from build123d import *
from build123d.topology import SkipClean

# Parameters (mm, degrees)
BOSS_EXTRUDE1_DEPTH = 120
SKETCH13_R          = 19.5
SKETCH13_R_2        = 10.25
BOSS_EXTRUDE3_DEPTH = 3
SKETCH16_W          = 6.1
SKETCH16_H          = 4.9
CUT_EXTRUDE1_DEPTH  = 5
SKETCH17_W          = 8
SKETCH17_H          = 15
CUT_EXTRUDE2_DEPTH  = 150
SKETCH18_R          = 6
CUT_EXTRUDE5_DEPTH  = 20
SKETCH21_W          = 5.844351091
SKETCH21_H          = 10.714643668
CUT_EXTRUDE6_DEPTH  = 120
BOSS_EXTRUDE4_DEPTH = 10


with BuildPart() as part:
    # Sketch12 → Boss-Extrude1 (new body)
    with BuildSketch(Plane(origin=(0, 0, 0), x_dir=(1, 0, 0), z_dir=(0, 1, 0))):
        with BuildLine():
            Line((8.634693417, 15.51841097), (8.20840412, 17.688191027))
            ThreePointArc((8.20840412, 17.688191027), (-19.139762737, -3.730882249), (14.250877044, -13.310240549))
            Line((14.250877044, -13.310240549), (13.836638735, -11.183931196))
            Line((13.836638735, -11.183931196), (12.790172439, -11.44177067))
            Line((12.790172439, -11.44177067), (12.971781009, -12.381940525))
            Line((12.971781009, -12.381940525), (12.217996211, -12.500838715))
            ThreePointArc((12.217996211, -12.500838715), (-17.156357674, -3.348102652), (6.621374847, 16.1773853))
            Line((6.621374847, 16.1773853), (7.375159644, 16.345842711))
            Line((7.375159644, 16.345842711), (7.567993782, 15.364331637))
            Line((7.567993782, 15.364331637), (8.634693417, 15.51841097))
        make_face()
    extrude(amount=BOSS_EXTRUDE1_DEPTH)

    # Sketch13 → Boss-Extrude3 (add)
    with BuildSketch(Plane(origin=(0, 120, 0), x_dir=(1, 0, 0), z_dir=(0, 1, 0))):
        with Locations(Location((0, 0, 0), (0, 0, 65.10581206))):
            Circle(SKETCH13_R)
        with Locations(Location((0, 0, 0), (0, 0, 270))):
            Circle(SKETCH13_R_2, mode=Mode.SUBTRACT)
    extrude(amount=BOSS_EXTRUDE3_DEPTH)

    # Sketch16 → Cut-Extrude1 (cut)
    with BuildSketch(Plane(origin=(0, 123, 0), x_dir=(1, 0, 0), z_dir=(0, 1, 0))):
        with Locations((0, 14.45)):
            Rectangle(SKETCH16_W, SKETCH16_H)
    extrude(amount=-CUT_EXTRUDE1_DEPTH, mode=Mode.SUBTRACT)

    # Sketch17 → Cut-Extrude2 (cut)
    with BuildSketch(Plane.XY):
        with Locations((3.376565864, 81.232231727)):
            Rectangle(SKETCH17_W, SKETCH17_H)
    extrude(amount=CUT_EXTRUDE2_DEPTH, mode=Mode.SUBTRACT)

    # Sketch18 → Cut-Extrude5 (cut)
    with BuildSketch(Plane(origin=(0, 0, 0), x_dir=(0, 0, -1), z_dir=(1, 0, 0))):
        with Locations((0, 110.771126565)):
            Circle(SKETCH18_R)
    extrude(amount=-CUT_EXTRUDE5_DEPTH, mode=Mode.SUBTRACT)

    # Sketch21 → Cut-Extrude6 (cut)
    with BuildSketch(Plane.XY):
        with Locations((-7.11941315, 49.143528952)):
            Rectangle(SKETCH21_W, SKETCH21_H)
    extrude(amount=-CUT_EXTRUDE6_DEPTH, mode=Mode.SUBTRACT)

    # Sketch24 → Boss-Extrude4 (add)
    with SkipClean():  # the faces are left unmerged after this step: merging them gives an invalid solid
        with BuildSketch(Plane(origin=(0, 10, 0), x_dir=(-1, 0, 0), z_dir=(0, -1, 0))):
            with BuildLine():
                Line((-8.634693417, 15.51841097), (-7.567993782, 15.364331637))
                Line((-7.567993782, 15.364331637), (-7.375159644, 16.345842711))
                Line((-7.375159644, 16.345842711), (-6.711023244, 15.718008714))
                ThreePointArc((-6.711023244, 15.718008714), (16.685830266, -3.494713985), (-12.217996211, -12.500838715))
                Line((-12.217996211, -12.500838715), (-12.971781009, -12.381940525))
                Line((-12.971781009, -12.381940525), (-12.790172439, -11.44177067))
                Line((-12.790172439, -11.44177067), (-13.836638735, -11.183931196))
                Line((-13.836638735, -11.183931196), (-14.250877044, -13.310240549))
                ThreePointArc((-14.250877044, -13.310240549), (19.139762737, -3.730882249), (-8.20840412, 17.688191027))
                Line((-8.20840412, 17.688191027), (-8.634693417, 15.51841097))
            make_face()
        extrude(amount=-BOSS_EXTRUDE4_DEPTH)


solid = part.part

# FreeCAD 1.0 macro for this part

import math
import FreeCAD as App
import Part
import Sketcher
Q = App.Units.Quantity

doc = App.newDocument("Part")
body = doc.addObject("PartDesign::Body", "Body")

# Sketch on XZ plane
sketch1 = body.newObject("Sketcher::SketchObject", "Sketch")
sketch1.AttachmentSupport = (doc.getObject("XZ_Plane"), [""])
sketch1.MapMode = "FlatFace"
sketch1.addGeometry([
    Part.LineSegment(App.Vector(8.634693, -15.518411, 0), App.Vector(8.208404, -17.688191, 0)),  # 0
    Part.ArcOfCircle(Part.Circle(App.Vector(0, 0, 0), App.Vector(0, 0, 1), 19.5), math.radians(43.045305), math.radians(294.894188)),  # 1
    Part.LineSegment(App.Vector(14.250877, 13.310241, 0), App.Vector(13.836639, 11.183931, 0)),  # 2
    Part.LineSegment(App.Vector(13.836639, 11.183931, 0), App.Vector(12.790172, 11.441771, 0)),  # 3
    Part.LineSegment(App.Vector(12.790172, 11.441771, 0), App.Vector(12.971781, 12.381941, 0)),  # 4
    Part.LineSegment(App.Vector(12.971781, 12.381941, 0), App.Vector(12.217996, 12.500839, 0)),  # 5
    Part.ArcOfCircle(Part.Circle(App.Vector(0, 0, 0), App.Vector(0, 0, 1), 17.48), math.radians(45.655572), math.radians(292.259198)),  # 6
    Part.LineSegment(App.Vector(6.621375, -16.177385, 0), App.Vector(7.37516, -16.345843, 0)),  # 7
    Part.LineSegment(App.Vector(7.37516, -16.345843, 0), App.Vector(7.567994, -15.364332, 0)),  # 8
    Part.LineSegment(App.Vector(7.567994, -15.364332, 0), App.Vector(8.634693, -15.518411, 0)),  # 9
], False)
sketch1.addConstraint([
    Sketcher.Constraint("Coincident", 0, 2, 1, 2),
    Sketcher.Constraint("Coincident", 1, 1, 2, 1),
    Sketcher.Constraint("Coincident", 2, 2, 3, 1),
    Sketcher.Constraint("Coincident", 3, 2, 4, 1),
    Sketcher.Constraint("Coincident", 4, 2, 5, 1),
    Sketcher.Constraint("Coincident", 5, 2, 6, 1),
    Sketcher.Constraint("Coincident", 6, 2, 7, 1),
    Sketcher.Constraint("Coincident", 7, 2, 8, 1),
    Sketcher.Constraint("Coincident", 8, 2, 9, 1),
    Sketcher.Constraint("Coincident", 9, 2, 0, 1),
    Sketcher.Constraint("Coincident", 1, 3, -1, 1),
    Sketcher.Constraint("Coincident", 6, 3, -1, 1),
    Sketcher.Constraint("Radius", 1, Q("19.5 mm")),
    Sketcher.Constraint("Radius", 6, Q("17.48 mm")),
    Sketcher.Constraint("DistanceY", 4, 2, 1, 1, Q("0.9283 mm")),
    Sketcher.Constraint("DistanceY", 4, 2, 5, 2, Q("0.118898 mm")),
    Sketcher.Constraint("DistanceX", 8, 2, 9, 2, Q("1.0667 mm")),
    Sketcher.Constraint("Distance", 0, Q("2.211259 mm")),
    Sketcher.Constraint("Distance", 4, Q("0.957549 mm")),
    Sketcher.Constraint("Distance", 7, Q("0.772379 mm")),
    Sketcher.Constraint("Distance", 9, Q("1.07777 mm")),
    Sketcher.Constraint("DistanceY", 0, 2, -1, 1, Q("17.688191 mm")),
    Sketcher.Constraint("DistanceY", -1, 1, 1, 1, Q("13.310241 mm")),
    Sketcher.Constraint("DistanceX", -1, 1, 2, 2, Q("13.836639 mm")),
    Sketcher.Constraint("DistanceY", -1, 1, 2, 2, Q("11.183931 mm")),
    Sketcher.Constraint("DistanceY", -1, 1, 3, 2, Q("11.441771 mm")),
    Sketcher.Constraint("DistanceX", -1, 1, 4, 2, Q("12.971781 mm")),
    Sketcher.Constraint("DistanceX", -1, 1, 7, 2, Q("7.37516 mm")),
    Sketcher.Constraint("DistanceY", 8, 2, -1, 1, Q("15.364332 mm")),
    Sketcher.Constraint("DistanceX", 6, 2, 0, 2, Q("1.587029 mm")),
])
pad1 = body.newObject("PartDesign::Pad", "Pad")
pad1.Profile = sketch1
pad1.Length = 120
pad1.Reversed = True

# Sketch on XZ plane
sketch2 = body.newObject("Sketcher::SketchObject", "Sketch001")
sketch2.AttachmentSupport = (doc.getObject("XZ_Plane"), [""])
sketch2.MapMode = "FlatFace"
sketch2.AttachmentOffset = App.Placement(App.Vector(0, 0, -120), App.Rotation())
sketch2.addGeometry([
    Part.Circle(App.Vector(0, 0, 0), App.Vector(0, 0, 1), 20),
    Part.Circle(App.Vector(0, 0, 0), App.Vector(0, 0, 1), 10),
], False)
sketch2.addConstraint([
    Sketcher.Constraint("Coincident", 0, 3, -1, 1),
    Sketcher.Constraint("Coincident", 1, 3, -1, 1),
    Sketcher.Constraint("Diameter", 0, Q("39 mm")),
    Sketcher.Constraint("Diameter", 1, Q("20.5 mm")),
])
pad2 = body.newObject("PartDesign::Pad", "Pad001")
pad2.Profile = sketch2
pad2.Length = 3
pad2.Reversed = True

# Sketch on XZ plane
sketch3 = body.newObject("Sketcher::SketchObject", "Sketch002")
sketch3.AttachmentSupport = (doc.getObject("XZ_Plane"), [""])
sketch3.MapMode = "FlatFace"
sketch3.AttachmentOffset = App.Placement(App.Vector(0, 0, -123), App.Rotation())
sketch3.addGeometry([
    Part.LineSegment(App.Vector(-3, -16.9, 0), App.Vector(-3, -12, 0)),
    Part.LineSegment(App.Vector(-3, -12, 0), App.Vector(3, -12, 0)),
    Part.LineSegment(App.Vector(3, -12, 0), App.Vector(3, -16.9, 0)),
    Part.LineSegment(App.Vector(3, -16.9, 0), App.Vector(-3, -16.9, 0)),
], False)
sketch3.addConstraint([
    Sketcher.Constraint("Coincident", 0, 2, 1, 1),
    Sketcher.Constraint("Coincident", 1, 2, 2, 1),
    Sketcher.Constraint("Coincident", 2, 2, 3, 1),
    Sketcher.Constraint("Coincident", 3, 2, 0, 1),
    Sketcher.Constraint("Vertical", 0),
    Sketcher.Constraint("Horizontal", 1),
    Sketcher.Constraint("Vertical", 2),
    Sketcher.Constraint("Horizontal", 3),
    Sketcher.Constraint("DistanceX", 1, 1, 1, 2, Q("6.1 mm")),
    Sketcher.Constraint("DistanceY", 0, 1, 0, 2, Q("4.9 mm")),
    Sketcher.Constraint("DistanceY", 0, 2, -1, 1, Q("12 mm")),
    Sketcher.Constraint("DistanceX", 0, 2, -1, 1, Q("3.05 mm")),
])
pocket1 = body.newObject("PartDesign::Pocket", "Pocket")
pocket1.Profile = sketch3
pocket1.Length = 5
pocket1.Reversed = True

# Sketch on XY plane
sketch4 = body.newObject("Sketcher::SketchObject", "Sketch003")
sketch4.AttachmentSupport = (doc.getObject("XY_Plane"), [""])
sketch4.MapMode = "FlatFace"
sketch4.addGeometry([
    Part.LineSegment(App.Vector(-1, 89, 0), App.Vector(-1, 74, 0)),
    Part.LineSegment(App.Vector(-1, 74, 0), App.Vector(7, 74, 0)),
    Part.LineSegment(App.Vector(7, 74, 0), App.Vector(7, 89, 0)),
    Part.LineSegment(App.Vector(7, 89, 0), App.Vector(-1, 89, 0)),
], False)
sketch4.addConstraint([
    Sketcher.Constraint("Coincident", 0, 2, 1, 1),
    Sketcher.Constraint("Coincident", 1, 2, 2, 1),
    Sketcher.Constraint("Coincident", 2, 2, 3, 1),
    Sketcher.Constraint("Coincident", 3, 2, 0, 1),
    Sketcher.Constraint("Vertical", 0),
    Sketcher.Constraint("Horizontal", 1),
    Sketcher.Constraint("Vertical", 2),
    Sketcher.Constraint("Horizontal", 3),
    Sketcher.Constraint("DistanceX", 1, 1, 1, 2, Q("8 mm")),
    Sketcher.Constraint("DistanceY", 0, 2, 0, 1, Q("15 mm")),
    Sketcher.Constraint("DistanceY", -1, 1, 0, 2, Q("73.732232 mm")),
    Sketcher.Constraint("DistanceX", 0, 2, -1, 1, Q("0.623434 mm")),
])
pocket2 = body.newObject("PartDesign::Pocket", "Pocket001")
pocket2.Profile = sketch4
pocket2.Length = 150
pocket2.Reversed = True

# Sketch on YZ plane
sketch5 = body.newObject("Sketcher::SketchObject", "Sketch004")
sketch5.AttachmentSupport = (doc.getObject("YZ_Plane"), [""])
sketch5.MapMode = "FlatFace"
sketch5.addGeometry(Part.Circle(App.Vector(111, 0, 0), App.Vector(0, 0, 1), 6), False)
sketch5.addConstraint([
    Sketcher.Constraint("PointOnObject", 0, 3, -1),
    Sketcher.Constraint("Diameter", 0, Q("12 mm")),
    Sketcher.Constraint("DistanceX", -1, 1, 0, 3, Q("110.771127 mm")),
])
pocket3 = body.newObject("PartDesign::Pocket", "Pocket002")
pocket3.Profile = sketch5
pocket3.Length = 20

# Sketch on XY plane
sketch6 = body.newObject("Sketcher::SketchObject", "Sketch005")
sketch6.AttachmentSupport = (doc.getObject("XY_Plane"), [""])
sketch6.MapMode = "FlatFace"
sketch6.addGeometry([
    Part.LineSegment(App.Vector(-10, 55, 0), App.Vector(-10, 44, 0)),
    Part.LineSegment(App.Vector(-10, 44, 0), App.Vector(-4, 44, 0)),
    Part.LineSegment(App.Vector(-4, 44, 0), App.Vector(-4, 55, 0)),
    Part.LineSegment(App.Vector(-4, 55, 0), App.Vector(-10, 55, 0)),
], False)
sketch6.addConstraint([
    Sketcher.Constraint("Coincident", 0, 2, 1, 1),
    Sketcher.Constraint("Coincident", 1, 2, 2, 1),
    Sketcher.Constraint("Coincident", 2, 2, 3, 1),
    Sketcher.Constraint("Coincident", 3, 2, 0, 1),
    Sketcher.Constraint("Vertical", 0),
    Sketcher.Constraint("Horizontal", 1),
    Sketcher.Constraint("Vertical", 2),
    Sketcher.Constraint("Horizontal", 3),
    Sketcher.Constraint("DistanceX", 1, 1, 1, 2, Q("5.844351 mm")),
    Sketcher.Constraint("DistanceY", 0, 2, 0, 1, Q("10.714644 mm")),
    Sketcher.Constraint("DistanceX", 0, 2, -1, 1, Q("10.041589 mm")),
    Sketcher.Constraint("DistanceY", -1, 1, 2, 2, Q("54.500851 mm")),
])
pocket4 = body.newObject("PartDesign::Pocket", "Pocket003")
pocket4.Profile = sketch6
pocket4.Length = 120

# Sketch on XZ plane
sketch7 = body.newObject("Sketcher::SketchObject", "Sketch006")
sketch7.AttachmentSupport = (doc.getObject("XZ_Plane"), [""])
sketch7.MapMode = "FlatFace"
sketch7.AttachmentOffset = App.Placement(App.Vector(0, 0, -10), App.Rotation())
sketch7.addGeometry([
    Part.LineSegment(App.Vector(8.6, -15.5, 0), App.Vector(7.6, -15.4, 0)),  # 0
    Part.LineSegment(App.Vector(7.6, -15.4, 0), App.Vector(7.4, -16.3, 0)),  # 1
    Part.LineSegment(App.Vector(7.4, -16.3, 0), App.Vector(6.7, -15.7, 0)),  # 2
    Part.ArcOfCircle(Part.Circle(App.Vector(0.2, 0.2, 0), App.Vector(0, 0, 1), 17.2), math.radians(46), math.radians(292)),  # 3
    Part.LineSegment(App.Vector(12.2, 12.5, 0), App.Vector(13, 12.4, 0)),  # 4
    Part.LineSegment(App.Vector(13, 12.4, 0), App.Vector(12.8, 11.4, 0)),  # 5
    Part.LineSegment(App.Vector(12.8, 11.4, 0), App.Vector(13.8, 11.2, 0)),  # 6
    Part.LineSegment(App.Vector(13.8, 11.2, 0), App.Vector(14.3, 13.3, 0)),  # 7
    Part.ArcOfCircle(Part.Circle(App.Vector(0, 0, 0), App.Vector(0, 0, 1), 19.5), math.radians(43), math.radians(295)),  # 8
    Part.LineSegment(App.Vector(8.2, -17.7, 0), App.Vector(8.6, -15.5, 0)),  # 9
], False)
sketch7.addConstraint([
    Sketcher.Constraint("Coincident", 0, 2, 1, 1),
    Sketcher.Constraint("Coincident", 1, 2, 2, 1),
    Sketcher.Constraint("Coincident", 2, 2, 3, 2),
    Sketcher.Constraint("Coincident", 3, 1, 4, 1),
    Sketcher.Constraint("Coincident", 4, 2, 5, 1),
    Sketcher.Constraint("Coincident", 5, 2, 6, 1),
    Sketcher.Constraint("Coincident", 6, 2, 7, 1),
    Sketcher.Constraint("Coincident", 7, 2, 8, 1),
    Sketcher.Constraint("Coincident", 8, 2, 9, 1),
    Sketcher.Constraint("Coincident", 9, 2, 0, 1),
    Sketcher.Constraint("Coincident", 8, 3, -1, 1),
    Sketcher.Constraint("Parallel", 1, 9),
    Sketcher.Constraint("Radius", 3, Q("17.2 mm")),
    Sketcher.Constraint("Radius", 8, Q("19.5 mm")),
    Sketcher.Constraint("DistanceY", 3, 3, 7, 2, Q("13.109998 mm")),
    Sketcher.Constraint("DistanceY", 4, 2, 3, 1, Q("0.118898 mm")),
    Sketcher.Constraint("DistanceY", 3, 3, 4, 2, Q("12.181698 mm")),
    Sketcher.Constraint("DistanceX", 0, 2, 9, 2, Q("1.0667 mm")),
    Sketcher.Constraint("Distance", 0, Q("1.07777 mm")),
    Sketcher.Constraint("Distance", 2, Q("0.913922 mm")),
    Sketcher.Constraint("Distance", 5, Q("0.957549 mm")),
    Sketcher.Constraint("Distance", 9, Q("2.211259 mm")),
    Sketcher.Constraint("DistanceX", -1, 1, 3, 3, Q("0.195712 mm")),
    Sketcher.Constraint("DistanceY", 0, 2, -1, 1, Q("15.364332 mm")),
    Sketcher.Constraint("DistanceX", -1, 1, 1, 2, Q("7.37516 mm")),
    Sketcher.Constraint("DistanceY", 2, 2, -1, 1, Q("15.718009 mm")),
    Sketcher.Constraint("DistanceY", -1, 1, 3, 1, Q("12.500839 mm")),
    Sketcher.Constraint("DistanceX", -1, 1, 4, 2, Q("12.971781 mm")),
    Sketcher.Constraint("DistanceY", -1, 1, 5, 2, Q("11.441771 mm")),
    Sketcher.Constraint("DistanceX", -1, 1, 6, 2, Q("13.836639 mm")),
    Sketcher.Constraint("DistanceY", -1, 1, 6, 2, Q("11.183931 mm")),
])
pad3 = body.newObject("PartDesign::Pad", "Pad002")
pad3.Profile = sketch7
pad3.Length = 10
pad3.Reversed = True

doc.recompute()
